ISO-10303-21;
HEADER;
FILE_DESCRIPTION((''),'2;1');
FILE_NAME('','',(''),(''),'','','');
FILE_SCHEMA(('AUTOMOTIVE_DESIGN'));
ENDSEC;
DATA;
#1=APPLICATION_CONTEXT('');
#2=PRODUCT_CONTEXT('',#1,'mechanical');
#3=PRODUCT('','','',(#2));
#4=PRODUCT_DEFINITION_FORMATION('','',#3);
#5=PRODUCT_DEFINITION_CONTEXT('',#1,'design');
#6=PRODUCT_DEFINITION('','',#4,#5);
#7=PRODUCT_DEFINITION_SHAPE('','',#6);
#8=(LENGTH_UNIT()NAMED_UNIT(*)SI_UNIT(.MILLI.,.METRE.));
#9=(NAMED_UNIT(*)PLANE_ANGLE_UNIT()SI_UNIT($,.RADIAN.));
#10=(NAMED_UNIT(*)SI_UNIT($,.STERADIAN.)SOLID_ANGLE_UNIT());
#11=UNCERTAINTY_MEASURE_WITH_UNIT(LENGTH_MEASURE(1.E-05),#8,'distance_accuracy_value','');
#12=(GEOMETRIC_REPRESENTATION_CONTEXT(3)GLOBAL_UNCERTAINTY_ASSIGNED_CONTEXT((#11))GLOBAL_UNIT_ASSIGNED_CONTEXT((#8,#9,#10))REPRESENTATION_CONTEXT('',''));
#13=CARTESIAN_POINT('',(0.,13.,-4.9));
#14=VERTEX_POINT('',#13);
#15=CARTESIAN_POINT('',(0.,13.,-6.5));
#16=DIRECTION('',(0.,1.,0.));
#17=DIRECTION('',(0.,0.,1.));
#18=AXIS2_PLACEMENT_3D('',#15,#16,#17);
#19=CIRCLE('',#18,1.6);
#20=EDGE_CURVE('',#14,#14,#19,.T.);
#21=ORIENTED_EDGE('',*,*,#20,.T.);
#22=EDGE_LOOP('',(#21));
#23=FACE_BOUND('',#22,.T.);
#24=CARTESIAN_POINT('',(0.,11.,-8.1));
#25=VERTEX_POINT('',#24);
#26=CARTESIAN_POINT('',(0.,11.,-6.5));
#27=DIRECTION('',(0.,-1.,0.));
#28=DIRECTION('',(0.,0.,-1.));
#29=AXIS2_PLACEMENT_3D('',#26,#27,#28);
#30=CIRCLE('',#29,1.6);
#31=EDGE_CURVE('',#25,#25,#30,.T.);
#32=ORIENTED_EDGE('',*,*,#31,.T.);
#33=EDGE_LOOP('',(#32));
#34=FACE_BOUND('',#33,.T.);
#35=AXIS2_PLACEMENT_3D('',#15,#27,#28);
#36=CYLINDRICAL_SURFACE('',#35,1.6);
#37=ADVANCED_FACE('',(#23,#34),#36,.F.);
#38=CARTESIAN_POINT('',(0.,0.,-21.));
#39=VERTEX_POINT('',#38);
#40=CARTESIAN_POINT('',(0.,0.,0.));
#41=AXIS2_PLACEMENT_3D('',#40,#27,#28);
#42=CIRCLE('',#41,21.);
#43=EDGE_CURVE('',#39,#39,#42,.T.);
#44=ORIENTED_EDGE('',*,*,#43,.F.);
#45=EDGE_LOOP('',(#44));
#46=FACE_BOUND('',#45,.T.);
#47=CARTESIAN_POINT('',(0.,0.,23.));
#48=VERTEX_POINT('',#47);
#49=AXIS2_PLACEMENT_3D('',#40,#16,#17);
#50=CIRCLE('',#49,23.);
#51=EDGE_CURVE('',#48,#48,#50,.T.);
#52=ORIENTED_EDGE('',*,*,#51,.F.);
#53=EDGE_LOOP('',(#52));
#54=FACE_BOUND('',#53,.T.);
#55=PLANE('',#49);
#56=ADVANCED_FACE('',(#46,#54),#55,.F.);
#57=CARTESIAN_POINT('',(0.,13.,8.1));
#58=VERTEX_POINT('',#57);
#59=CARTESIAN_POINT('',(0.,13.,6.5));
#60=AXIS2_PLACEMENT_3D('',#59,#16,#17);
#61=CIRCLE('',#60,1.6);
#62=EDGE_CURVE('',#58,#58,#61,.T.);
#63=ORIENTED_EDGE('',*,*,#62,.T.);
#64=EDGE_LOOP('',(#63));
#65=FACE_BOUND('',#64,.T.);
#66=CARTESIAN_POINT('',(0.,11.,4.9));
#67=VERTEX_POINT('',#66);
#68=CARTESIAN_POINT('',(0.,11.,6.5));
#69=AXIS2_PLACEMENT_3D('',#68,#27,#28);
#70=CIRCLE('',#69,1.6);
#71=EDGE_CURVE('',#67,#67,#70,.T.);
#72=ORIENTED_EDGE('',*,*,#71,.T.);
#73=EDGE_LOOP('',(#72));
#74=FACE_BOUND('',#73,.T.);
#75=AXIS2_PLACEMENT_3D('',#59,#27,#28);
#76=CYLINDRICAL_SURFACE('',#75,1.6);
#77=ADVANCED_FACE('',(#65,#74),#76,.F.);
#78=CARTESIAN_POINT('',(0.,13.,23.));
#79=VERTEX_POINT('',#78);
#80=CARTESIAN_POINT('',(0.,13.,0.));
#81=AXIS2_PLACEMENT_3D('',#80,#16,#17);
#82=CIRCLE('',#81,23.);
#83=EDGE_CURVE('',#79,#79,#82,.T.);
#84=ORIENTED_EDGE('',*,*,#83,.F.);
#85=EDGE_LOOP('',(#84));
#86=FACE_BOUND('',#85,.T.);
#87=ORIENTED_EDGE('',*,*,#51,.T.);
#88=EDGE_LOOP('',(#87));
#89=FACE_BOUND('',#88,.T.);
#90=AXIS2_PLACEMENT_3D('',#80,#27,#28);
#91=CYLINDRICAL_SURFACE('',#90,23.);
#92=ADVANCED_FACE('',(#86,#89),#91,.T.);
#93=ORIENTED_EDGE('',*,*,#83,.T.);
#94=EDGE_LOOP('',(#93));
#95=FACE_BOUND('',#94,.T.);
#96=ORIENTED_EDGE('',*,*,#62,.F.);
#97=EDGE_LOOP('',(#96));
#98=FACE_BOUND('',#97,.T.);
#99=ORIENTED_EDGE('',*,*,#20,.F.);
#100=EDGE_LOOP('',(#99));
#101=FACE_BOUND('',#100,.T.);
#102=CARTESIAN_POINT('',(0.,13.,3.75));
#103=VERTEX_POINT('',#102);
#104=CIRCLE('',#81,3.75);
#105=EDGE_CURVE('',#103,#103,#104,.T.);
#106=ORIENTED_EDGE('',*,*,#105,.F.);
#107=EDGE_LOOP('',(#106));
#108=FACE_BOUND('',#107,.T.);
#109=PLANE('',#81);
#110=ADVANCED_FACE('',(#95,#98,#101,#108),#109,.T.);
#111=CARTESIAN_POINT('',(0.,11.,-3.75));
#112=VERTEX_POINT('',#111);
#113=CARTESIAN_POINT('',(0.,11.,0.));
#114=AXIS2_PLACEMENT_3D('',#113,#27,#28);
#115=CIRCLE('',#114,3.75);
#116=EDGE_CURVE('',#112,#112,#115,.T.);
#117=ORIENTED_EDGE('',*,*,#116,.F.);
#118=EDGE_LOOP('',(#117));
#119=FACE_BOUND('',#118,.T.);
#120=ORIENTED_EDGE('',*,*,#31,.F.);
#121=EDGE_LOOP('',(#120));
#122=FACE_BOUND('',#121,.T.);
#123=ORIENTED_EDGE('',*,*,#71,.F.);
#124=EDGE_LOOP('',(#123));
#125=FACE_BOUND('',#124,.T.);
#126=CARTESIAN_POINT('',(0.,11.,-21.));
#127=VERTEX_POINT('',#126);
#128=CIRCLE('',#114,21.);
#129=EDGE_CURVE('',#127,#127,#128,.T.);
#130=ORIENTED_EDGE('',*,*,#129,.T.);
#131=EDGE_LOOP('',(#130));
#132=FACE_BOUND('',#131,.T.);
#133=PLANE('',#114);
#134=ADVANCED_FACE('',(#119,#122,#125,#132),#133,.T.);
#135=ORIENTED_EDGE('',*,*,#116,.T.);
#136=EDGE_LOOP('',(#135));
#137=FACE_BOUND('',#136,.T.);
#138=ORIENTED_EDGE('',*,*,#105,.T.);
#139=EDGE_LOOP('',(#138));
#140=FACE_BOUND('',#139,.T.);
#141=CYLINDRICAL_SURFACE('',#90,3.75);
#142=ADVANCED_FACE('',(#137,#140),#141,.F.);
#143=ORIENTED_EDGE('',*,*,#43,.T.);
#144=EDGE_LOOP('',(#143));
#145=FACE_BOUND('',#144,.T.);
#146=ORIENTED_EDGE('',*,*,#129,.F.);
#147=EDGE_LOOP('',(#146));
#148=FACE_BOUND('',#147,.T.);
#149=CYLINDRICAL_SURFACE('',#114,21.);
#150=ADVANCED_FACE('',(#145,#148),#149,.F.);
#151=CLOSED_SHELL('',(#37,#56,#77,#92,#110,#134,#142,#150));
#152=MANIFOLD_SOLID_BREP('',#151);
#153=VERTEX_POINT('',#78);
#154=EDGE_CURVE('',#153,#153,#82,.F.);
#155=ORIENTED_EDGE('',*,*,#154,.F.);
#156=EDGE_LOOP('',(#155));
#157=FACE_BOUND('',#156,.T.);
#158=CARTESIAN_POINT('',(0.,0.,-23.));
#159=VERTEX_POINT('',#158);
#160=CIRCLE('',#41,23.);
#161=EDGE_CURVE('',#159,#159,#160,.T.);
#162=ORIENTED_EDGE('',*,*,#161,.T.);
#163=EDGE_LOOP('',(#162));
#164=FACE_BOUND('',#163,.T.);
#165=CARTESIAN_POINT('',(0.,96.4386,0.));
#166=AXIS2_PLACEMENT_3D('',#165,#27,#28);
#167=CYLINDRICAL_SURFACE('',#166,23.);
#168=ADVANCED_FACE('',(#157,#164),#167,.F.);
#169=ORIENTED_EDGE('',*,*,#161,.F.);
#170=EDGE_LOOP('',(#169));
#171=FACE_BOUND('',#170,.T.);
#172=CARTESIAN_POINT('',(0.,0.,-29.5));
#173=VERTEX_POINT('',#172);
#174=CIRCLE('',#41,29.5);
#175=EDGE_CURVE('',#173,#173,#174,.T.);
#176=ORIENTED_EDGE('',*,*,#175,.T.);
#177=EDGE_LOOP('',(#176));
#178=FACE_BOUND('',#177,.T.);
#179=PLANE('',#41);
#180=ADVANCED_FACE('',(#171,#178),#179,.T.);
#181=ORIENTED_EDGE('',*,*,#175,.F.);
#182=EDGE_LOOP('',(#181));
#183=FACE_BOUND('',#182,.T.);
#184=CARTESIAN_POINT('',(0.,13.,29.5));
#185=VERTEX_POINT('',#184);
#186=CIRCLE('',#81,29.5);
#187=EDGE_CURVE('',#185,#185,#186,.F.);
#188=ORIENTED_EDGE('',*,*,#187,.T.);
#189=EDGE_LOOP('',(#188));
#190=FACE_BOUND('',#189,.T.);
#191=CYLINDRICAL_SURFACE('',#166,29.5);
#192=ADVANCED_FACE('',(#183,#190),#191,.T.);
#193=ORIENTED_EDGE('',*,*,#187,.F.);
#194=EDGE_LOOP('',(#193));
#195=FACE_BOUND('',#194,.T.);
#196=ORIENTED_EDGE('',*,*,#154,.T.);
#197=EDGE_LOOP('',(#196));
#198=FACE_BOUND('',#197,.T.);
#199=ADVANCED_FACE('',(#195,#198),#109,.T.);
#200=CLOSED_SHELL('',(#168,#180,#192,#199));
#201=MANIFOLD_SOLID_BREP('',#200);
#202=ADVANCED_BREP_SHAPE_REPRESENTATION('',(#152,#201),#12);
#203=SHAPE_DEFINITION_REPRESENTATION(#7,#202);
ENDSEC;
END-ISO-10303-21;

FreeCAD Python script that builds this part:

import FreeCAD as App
import Part
import Sketcher

V = App.Vector

doc = App.newDocument("Part")
body = doc.addObject("PartDesign::Body", "Body")

# Sketch on XZ plane
sketch1 = body.newObject("Sketcher::SketchObject", "Sketch")
sketch1.AttachmentSupport = (doc.getObject("XZ_Plane"), [""])
sketch1.MapMode = "FlatFace"
sketch1.addGeometry([
    Part.Circle(V(0, 0, 0), V(0, 0, 1), 23),
    Part.Circle(V(0, 6.5, 0), V(0, 0, 1), 1.6),
    Part.Circle(V(0, 0, 0), V(0, 0, 1), 3.75),
    Part.Circle(V(0, -6.5, 0), V(0, 0, 1), 1.6),
], False)
sketch1.addConstraint([
    Sketcher.Constraint("Coincident", 0, 3, -1, 1),
    Sketcher.Constraint("Coincident", 2, 3, -1, 1),
    Sketcher.Constraint("Equal", 1, 3),
    Sketcher.Constraint("Symmetric", 1, 3, 3, 3, -1, 1),
    Sketcher.Constraint("PointOnObject", 1, 3, -2),
    Sketcher.Constraint("Diameter", 0, 46.0),
    Sketcher.Constraint("Diameter", 1, 3.2),
    Sketcher.Constraint("Diameter", 2, 7.5),
    Sketcher.Constraint("DistanceY", 3, 3, 1, 3, 13.0),
])
pad1 = body.newObject("PartDesign::Pad", "Pad")
pad1.Profile = sketch1
pad1.Length = 13
pad1.Reversed = True

# Sketch on XZ plane
sketch2 = body.newObject("Sketcher::SketchObject", "Sketch001")
sketch2.AttachmentSupport = (doc.getObject("XZ_Plane"), [""])
sketch2.MapMode = "FlatFace"
sketch2.addGeometry(Part.Circle(V(0, 0, 0), V(0, 0, 1), 21), False)
sketch2.addConstraint([
    Sketcher.Constraint("Coincident", 0, 3, -1, 1),
    Sketcher.Constraint("Diameter", 0, 42.0),
])
pocket1 = body.newObject("PartDesign::Pocket", "Pocket")
pocket1.Profile = sketch2
pocket1.Length = 11
body2 = doc.addObject("PartDesign::Body", "Body001")

# Sketch on XZ plane
sketch3 = body2.newObject("Sketcher::SketchObject", "Sketch002")
sketch3.AttachmentSupport = (doc.getObject("XZ_Plane001"), [""])
sketch3.MapMode = "FlatFace"
sketch3.addGeometry([
    Part.Circle(V(0, 0, 0), V(0, 0, 1), 29.5),
    Part.Circle(V(0, 0, 0), V(0, 0, 1), 23),
], False)
sketch3.addConstraint([
    Sketcher.Constraint("Coincident", 0, 3, -1, 1),
    Sketcher.Constraint("Coincident", 1, 3, -1, 1),
    Sketcher.Constraint("Diameter", 0, 59.0),
    Sketcher.Constraint("Diameter", 1, 46.0),
])
pad2 = body2.newObject("PartDesign::Pad", "Pad001")
pad2.Profile = sketch3
pad2.Length = 13
pad2.Reversed = True

doc.recompute()
